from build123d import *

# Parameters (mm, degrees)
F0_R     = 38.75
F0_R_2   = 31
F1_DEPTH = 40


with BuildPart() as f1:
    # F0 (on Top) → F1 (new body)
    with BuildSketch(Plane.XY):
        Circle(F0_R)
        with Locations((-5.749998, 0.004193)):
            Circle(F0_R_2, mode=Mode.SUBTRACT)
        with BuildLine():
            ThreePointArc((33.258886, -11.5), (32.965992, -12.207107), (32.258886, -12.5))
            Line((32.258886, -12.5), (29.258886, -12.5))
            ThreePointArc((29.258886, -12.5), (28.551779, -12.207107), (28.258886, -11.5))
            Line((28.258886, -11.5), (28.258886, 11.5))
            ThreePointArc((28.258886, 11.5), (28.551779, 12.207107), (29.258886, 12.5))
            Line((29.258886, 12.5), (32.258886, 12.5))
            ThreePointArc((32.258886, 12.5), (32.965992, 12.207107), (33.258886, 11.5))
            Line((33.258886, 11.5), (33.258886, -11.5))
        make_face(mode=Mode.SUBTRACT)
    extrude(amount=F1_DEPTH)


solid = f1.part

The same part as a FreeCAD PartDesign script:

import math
import FreeCAD as App
import Part
import Sketcher
from FreeCAD import Vector

doc = App.newDocument("Part")
body = doc.addObject("PartDesign::Body", "Body")

# Sketch on XY plane
sketch1 = doc.addObject("Sketcher::SketchObject", "Sketch")
body.addObject(sketch1)
sketch1.AttachmentSupport = (doc.XY_Plane, [""])
sketch1.MapMode = "FlatFace"
sketch1.addGeometry(Part.Circle(Vector(0, 0, 0), Vector(0, 0, 1), 38.8), False)
sketch1.addGeometry(Part.LineSegment(Vector(33.3, 11.5, 0), Vector(33.3, -11.5, 0)), False)
sketch1.addGeometry(Part.ArcOfCircle(Part.Circle(Vector(32.3, -11.5, 0), Vector(0, 0, 1), 1), math.radians(-90), math.radians(0)), False)
sketch1.addGeometry(Part.LineSegment(Vector(32.3, -12.5, 0), Vector(29.3, -12.5, 0)), False)
sketch1.addGeometry(Part.ArcOfCircle(Part.Circle(Vector(29.3, -11.5, 0), Vector(0, 0, 1), 1), math.radians(180), math.radians(270)), False)
sketch1.addGeometry(Part.LineSegment(Vector(28.3, -11.5, 0), Vector(28.3, 11.5, 0)), False)
sketch1.addGeometry(Part.ArcOfCircle(Part.Circle(Vector(29.3, 11.5, 0), Vector(0, 0, 1), 1), math.radians(90), math.radians(180)), False)
sketch1.addGeometry(Part.LineSegment(Vector(29.3, 12.5, 0), Vector(32.3, 12.5, 0)), False)
sketch1.addGeometry(Part.ArcOfCircle(Part.Circle(Vector(32.3, 11.5, 0), Vector(0, 0, 1), 1), math.radians(0), math.radians(90)), False)
sketch1.addGeometry(Part.Circle(Vector(-5.7, 0, 0), Vector(0, 0, 1), 31), False)
sketch1.addConstraint(Sketcher.Constraint("Tangent", 1, 2, 2, 2))
sketch1.addConstraint(Sketcher.Constraint("Tangent", 2, 1, 3, 1))
sketch1.addConstraint(Sketcher.Constraint("Tangent", 3, 2, 4, 2))
sketch1.addConstraint(Sketcher.Constraint("Tangent", 4, 1, 5, 1))
sketch1.addConstraint(Sketcher.Constraint("Tangent", 5, 2, 6, 2))
sketch1.addConstraint(Sketcher.Constraint("Tangent", 6, 1, 7, 1))
sketch1.addConstraint(Sketcher.Constraint("Tangent", 7, 2, 8, 2))
sketch1.addConstraint(Sketcher.Constraint("Tangent", 8, 1, 1, 1))
sketch1.addConstraint(Sketcher.Constraint("Vertical", 1))
sketch1.addConstraint(Sketcher.Constraint("Horizontal", 3))
sketch1.addConstraint(Sketcher.Constraint("Vertical", 5))
sketch1.addConstraint(Sketcher.Constraint("Horizontal", 7))
sketch1.addConstraint(Sketcher.Constraint("Coincident", 0, 3, -1, 1))
sketch1.addConstraint(Sketcher.Constraint("Equal", 2, 4))
sketch1.addConstraint(Sketcher.Constraint("Equal", 4, 6))
sketch1.addConstraint(Sketcher.Constraint("Equal", 6, 8))
sketch1.addConstraint(Sketcher.Constraint("Diameter", 9, 62.0))
sketch1.addConstraint(Sketcher.Constraint("Radius", 2, 1.000001))
sketch1.addConstraint(Sketcher.Constraint("Diameter", 0, 77.5))
sketch1.addConstraint(Sketcher.Constraint("DistanceX", 3, 2, 3, 1, 3.0))
sketch1.addConstraint(Sketcher.Constraint("DistanceY", 1, 2, 1, 1, 23.0))
sketch1.addConstraint(Sketcher.Constraint("DistanceY", 2, 3, -1, 1, 11.499999))
sketch1.addConstraint(Sketcher.Constraint("DistanceX", -1, 1, 2, 3, 32.258885))
sketch1.addConstraint(Sketcher.Constraint("DistanceX", 9, 3, -1, 1, 5.749998))
sketch1.addConstraint(Sketcher.Constraint("DistanceY", -1, 1, 9, 3, 0.004193))
pad1 = doc.addObject("PartDesign::Pad", "Pad")
body.addObject(pad1)
pad1.Profile = sketch1
pad1.Length = 40

doc.recompute()
